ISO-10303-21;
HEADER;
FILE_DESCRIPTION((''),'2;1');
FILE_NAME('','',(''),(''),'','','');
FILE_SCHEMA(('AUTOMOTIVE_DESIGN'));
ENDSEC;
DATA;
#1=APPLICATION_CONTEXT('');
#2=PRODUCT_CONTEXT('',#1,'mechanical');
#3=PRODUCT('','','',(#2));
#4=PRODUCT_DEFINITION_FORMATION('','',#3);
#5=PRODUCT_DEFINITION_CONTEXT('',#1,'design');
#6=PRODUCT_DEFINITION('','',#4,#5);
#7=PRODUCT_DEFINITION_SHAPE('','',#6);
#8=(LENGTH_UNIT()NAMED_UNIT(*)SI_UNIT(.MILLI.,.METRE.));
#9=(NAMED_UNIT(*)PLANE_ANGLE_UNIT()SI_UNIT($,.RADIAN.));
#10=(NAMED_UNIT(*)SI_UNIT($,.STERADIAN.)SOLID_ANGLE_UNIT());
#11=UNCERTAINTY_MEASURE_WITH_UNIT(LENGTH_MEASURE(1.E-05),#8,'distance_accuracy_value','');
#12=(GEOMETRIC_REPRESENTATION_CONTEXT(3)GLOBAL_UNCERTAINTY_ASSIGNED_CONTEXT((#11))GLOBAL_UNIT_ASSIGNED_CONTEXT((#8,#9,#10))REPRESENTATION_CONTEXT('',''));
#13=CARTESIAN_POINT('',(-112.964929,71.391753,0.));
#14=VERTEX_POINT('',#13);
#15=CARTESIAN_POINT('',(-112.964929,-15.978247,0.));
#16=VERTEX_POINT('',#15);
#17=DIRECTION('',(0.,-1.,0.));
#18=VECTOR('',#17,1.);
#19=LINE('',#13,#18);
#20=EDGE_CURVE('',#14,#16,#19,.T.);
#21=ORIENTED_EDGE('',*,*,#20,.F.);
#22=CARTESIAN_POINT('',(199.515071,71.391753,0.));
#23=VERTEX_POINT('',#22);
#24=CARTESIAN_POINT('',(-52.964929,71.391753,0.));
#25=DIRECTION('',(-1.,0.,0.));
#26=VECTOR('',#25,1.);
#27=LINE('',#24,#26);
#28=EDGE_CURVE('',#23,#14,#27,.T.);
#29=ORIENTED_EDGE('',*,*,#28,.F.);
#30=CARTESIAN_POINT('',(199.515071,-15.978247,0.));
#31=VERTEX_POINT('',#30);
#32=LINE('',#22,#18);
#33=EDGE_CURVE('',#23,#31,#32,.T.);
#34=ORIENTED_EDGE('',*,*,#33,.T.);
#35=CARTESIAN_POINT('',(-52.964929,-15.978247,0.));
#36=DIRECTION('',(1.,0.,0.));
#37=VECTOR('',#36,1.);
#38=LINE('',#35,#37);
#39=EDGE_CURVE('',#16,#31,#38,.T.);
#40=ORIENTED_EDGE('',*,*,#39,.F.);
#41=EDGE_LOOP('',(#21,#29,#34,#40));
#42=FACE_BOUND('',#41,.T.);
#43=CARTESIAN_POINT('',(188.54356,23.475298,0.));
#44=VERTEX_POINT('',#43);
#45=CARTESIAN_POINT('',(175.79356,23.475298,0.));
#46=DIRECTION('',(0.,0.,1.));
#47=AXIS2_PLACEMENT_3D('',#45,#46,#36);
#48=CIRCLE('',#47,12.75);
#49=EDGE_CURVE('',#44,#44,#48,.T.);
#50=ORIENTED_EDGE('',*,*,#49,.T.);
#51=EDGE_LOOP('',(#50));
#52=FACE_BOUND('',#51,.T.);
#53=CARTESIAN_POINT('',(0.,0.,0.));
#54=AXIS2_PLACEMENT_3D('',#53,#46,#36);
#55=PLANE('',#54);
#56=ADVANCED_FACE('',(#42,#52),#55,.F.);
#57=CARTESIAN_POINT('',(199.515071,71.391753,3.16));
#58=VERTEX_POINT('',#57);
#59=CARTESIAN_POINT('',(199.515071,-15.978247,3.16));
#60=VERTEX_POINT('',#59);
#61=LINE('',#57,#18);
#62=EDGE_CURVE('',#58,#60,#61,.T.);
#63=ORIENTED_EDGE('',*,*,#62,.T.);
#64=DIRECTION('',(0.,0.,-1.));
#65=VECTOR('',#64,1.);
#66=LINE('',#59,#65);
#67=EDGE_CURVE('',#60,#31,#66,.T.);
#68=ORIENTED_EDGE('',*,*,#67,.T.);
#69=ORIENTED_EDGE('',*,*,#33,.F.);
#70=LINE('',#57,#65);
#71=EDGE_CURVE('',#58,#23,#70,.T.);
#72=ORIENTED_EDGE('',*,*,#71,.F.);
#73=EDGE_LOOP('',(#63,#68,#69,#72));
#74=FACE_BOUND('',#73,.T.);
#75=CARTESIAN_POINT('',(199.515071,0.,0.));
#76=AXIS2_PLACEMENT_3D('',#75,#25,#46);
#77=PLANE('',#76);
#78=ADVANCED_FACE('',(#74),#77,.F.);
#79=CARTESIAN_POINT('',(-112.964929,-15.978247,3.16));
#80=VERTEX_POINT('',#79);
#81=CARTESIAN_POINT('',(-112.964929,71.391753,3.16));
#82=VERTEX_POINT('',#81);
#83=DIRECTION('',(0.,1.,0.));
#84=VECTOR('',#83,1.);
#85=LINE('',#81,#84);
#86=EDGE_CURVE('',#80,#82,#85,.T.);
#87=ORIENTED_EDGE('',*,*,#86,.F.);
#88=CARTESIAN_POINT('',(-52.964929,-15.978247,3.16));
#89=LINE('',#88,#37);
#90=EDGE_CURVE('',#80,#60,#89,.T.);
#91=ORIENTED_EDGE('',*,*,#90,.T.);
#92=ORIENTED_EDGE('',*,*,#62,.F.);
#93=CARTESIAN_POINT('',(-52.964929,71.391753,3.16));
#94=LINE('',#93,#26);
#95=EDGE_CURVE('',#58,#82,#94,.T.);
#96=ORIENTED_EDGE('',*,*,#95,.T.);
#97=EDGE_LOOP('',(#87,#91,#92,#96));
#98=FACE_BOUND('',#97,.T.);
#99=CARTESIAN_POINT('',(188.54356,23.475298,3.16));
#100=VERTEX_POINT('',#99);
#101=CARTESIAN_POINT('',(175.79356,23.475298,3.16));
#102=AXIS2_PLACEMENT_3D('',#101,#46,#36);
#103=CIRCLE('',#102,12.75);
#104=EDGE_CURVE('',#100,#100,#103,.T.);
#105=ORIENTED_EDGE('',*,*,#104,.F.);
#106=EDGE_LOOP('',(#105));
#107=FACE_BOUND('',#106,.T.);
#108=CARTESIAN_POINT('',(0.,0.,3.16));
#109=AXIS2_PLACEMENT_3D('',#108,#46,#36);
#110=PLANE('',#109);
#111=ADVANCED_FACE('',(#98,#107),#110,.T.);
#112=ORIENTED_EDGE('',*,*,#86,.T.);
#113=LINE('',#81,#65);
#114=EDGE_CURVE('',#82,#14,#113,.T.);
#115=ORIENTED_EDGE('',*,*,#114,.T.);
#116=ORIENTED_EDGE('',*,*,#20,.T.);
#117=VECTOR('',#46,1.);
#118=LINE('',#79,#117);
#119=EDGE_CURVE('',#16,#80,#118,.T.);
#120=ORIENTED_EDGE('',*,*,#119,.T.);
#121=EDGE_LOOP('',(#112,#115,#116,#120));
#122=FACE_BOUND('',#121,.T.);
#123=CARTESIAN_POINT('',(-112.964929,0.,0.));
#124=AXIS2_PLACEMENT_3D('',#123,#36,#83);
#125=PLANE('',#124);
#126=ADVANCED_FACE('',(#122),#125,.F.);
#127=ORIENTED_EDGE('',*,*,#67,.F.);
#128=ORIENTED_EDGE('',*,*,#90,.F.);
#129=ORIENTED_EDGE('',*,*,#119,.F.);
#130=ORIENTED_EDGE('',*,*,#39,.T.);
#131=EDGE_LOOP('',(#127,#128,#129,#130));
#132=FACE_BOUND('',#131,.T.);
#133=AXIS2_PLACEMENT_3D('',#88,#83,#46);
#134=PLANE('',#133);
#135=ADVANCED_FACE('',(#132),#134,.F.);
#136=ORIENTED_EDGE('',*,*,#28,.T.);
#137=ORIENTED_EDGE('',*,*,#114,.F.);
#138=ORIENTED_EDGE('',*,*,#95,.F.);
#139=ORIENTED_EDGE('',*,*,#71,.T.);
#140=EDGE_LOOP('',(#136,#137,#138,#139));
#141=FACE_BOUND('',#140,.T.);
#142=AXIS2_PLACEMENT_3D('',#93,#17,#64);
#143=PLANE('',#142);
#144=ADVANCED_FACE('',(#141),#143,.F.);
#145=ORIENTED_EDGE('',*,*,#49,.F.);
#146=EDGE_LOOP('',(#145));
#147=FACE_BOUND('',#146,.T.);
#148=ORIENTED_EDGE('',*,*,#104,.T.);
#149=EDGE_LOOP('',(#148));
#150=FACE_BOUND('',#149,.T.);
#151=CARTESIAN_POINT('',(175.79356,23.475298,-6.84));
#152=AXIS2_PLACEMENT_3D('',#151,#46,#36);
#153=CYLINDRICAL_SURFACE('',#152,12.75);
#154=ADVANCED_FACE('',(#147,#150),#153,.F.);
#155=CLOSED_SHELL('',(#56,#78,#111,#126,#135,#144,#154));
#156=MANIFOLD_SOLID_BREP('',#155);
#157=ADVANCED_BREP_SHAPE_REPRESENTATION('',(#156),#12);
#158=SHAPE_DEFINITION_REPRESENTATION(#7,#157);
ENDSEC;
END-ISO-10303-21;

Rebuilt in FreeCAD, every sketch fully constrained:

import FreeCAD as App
import Part
import Sketcher

V = App.Vector

doc = App.newDocument("Part")
body = doc.addObject("PartDesign::Body", "Body")

# Sketch on XY plane
sketch1 = body.newObject("Sketcher::SketchObject", "Sketch")
sketch1.AttachmentSupport = (doc.getObject("XY_Plane"), [""])
sketch1.MapMode = "FlatFace"
sketch1.addGeometry(Part.LineSegment(V(-53, 71, 0), V(-53, -16, 0)), False)
sketch1.addGeometry(Part.LineSegment(V(-53, -16, 0), V(24, -16, 0)), False)
sketch1.addGeometry(Part.LineSegment(V(24, -16, 0), V(24, 71, 0)), False)
sketch1.addGeometry(Part.LineSegment(V(24, 71, 0), V(-53, 71, 0)), False)
sketch1.addConstraint(Sketcher.Constraint("Coincident", 0, 2, 1, 1))
sketch1.addConstraint(Sketcher.Constraint("Coincident", 1, 2, 2, 1))
sketch1.addConstraint(Sketcher.Constraint("Coincident", 2, 2, 3, 1))
sketch1.addConstraint(Sketcher.Constraint("Coincident", 3, 2, 0, 1))
sketch1.addConstraint(Sketcher.Constraint("Vertical", 0))
sketch1.addConstraint(Sketcher.Constraint("Horizontal", 1))
sketch1.addConstraint(Sketcher.Constraint("Vertical", 2))
sketch1.addConstraint(Sketcher.Constraint("Horizontal", 3))
sketch1.addConstraint(Sketcher.Constraint("DistanceX", 1, 1, 1, 2, 77.34))
sketch1.addConstraint(Sketcher.Constraint("DistanceY", 0, 2, 0, 1, 87.37))
sketch1.addConstraint(Sketcher.Constraint("DistanceX", 0, 2, -1, 1, 52.964929))
sketch1.addConstraint(Sketcher.Constraint("DistanceY", 0, 2, -1, 1, 15.978247))
pad1 = body.newObject("PartDesign::Pad", "Pad")
pad1.Profile = sketch1
pad1.Length = 3.16

# Sketch on YZ plane
sketch2 = body.newObject("Sketcher::SketchObject", "Sketch001")
sketch2.AttachmentSupport = (doc.getObject("YZ_Plane"), [""])
sketch2.MapMode = "FlatFace"
sketch2.AttachmentOffset = App.Placement(V(0, 0, 24.375071), App.Rotation())
sketch2.addGeometry(Part.LineSegment(V(71.4, 3.2, 0), V(-16, 3.2, 0)), False)
sketch2.addGeometry(Part.LineSegment(V(-16, 3.2, 0), V(-16, 0, 0)), False)
sketch2.addGeometry(Part.LineSegment(V(-16, 0, 0), V(71.4, 0, 0)), False)
sketch2.addGeometry(Part.LineSegment(V(71.4, 0, 0), V(71.4, 3.2, 0)), False)
sketch2.addConstraint(Sketcher.Constraint("Coincident", 0, 2, 1, 1))
sketch2.addConstraint(Sketcher.Constraint("Coincident", 1, 2, 2, 1))
sketch2.addConstraint(Sketcher.Constraint("Coincident", 2, 2, 3, 1))
sketch2.addConstraint(Sketcher.Constraint("Coincident", 3, 2, 0, 1))
sketch2.addConstraint(Sketcher.Constraint("Horizontal", 0))
sketch2.addConstraint(Sketcher.Constraint("Vertical", 1))
sketch2.addConstraint(Sketcher.Constraint("Horizontal", 2))
sketch2.addConstraint(Sketcher.Constraint("Vertical", 3))
sketch2.addConstraint(Sketcher.Constraint("PointOnObject", 1, 2, -1))
sketch2.addConstraint(Sketcher.Constraint("DistanceX", 0, 2, 0, 1, 87.37))
sketch2.addConstraint(Sketcher.Constraint("DistanceY", 1, 2, 1, 1, 3.16))
sketch2.addConstraint(Sketcher.Constraint("DistanceX", 0, 2, -1, 1, 15.978247))
pad2 = body.newObject("PartDesign::Pad", "Pad001")
pad2.Profile = sketch2
pad2.Length = 80

# Sketch on YZ plane
sketch3 = body.newObject("Sketcher::SketchObject", "Sketch002")
sketch3.AttachmentSupport = (doc.getObject("YZ_Plane"), [""])
sketch3.MapMode = "FlatFace"
sketch3.AttachmentOffset = App.Placement(V(0, 0, -52.964929), App.Rotation())
sketch3.addGeometry(Part.LineSegment(V(71.4, 0, 0), V(-16, 0, 0)), False)
sketch3.addGeometry(Part.LineSegment(V(-16, 0, 0), V(-16, 3.2, 0)), False)
sketch3.addGeometry(Part.LineSegment(V(-16, 3.2, 0), V(71.4, 3.2, 0)), False)
sketch3.addGeometry(Part.LineSegment(V(71.4, 3.2, 0), V(71.4, 0, 0)), False)
sketch3.addConstraint(Sketcher.Constraint("Coincident", 0, 2, 1, 1))
sketch3.addConstraint(Sketcher.Constraint("Coincident", 1, 2, 2, 1))
sketch3.addConstraint(Sketcher.Constraint("Coincident", 2, 2, 3, 1))
sketch3.addConstraint(Sketcher.Constraint("Coincident", 3, 2, 0, 1))
sketch3.addConstraint(Sketcher.Constraint("Horizontal", 0))
sketch3.addConstraint(Sketcher.Constraint("Vertical", 1))
sketch3.addConstraint(Sketcher.Constraint("Horizontal", 2))
sketch3.addConstraint(Sketcher.Constraint("Vertical", 3))
sketch3.addConstraint(Sketcher.Constraint("PointOnObject", 0, 2, -1))
sketch3.addConstraint(Sketcher.Constraint("DistanceX", 0, 2, 0, 1, 87.37))
sketch3.addConstraint(Sketcher.Constraint("DistanceY", 1, 1, 1, 2, 3.16))
sketch3.addConstraint(Sketcher.Constraint("DistanceX", 0, 2, -1, 1, 15.978247))
pad3 = body.newObject("PartDesign::Pad", "Pad002")
pad3.Profile = sketch3
pad3.Length = 60
pad3.Reversed = True

# Sketch on YZ plane
sketch4 = body.newObject("Sketcher::SketchObject", "Sketch003")
sketch4.AttachmentSupport = (doc.getObject("YZ_Plane"), [""])
sketch4.MapMode = "FlatFace"
sketch4.AttachmentOffset = App.Placement(V(0, 0, 104.375071), App.Rotation())
sketch4.addGeometry(Part.LineSegment(V(71.4, 3.2, 0), V(-16, 3.2, 0)), False)
sketch4.addGeometry(Part.LineSegment(V(-16, 3.2, 0), V(-16, 0, 0)), False)
sketch4.addGeometry(Part.LineSegment(V(-16, 0, 0), V(71.4, 0, 0)), False)
sketch4.addGeometry(Part.LineSegment(V(71.4, 0, 0), V(71.4, 3.2, 0)), False)
sketch4.addConstraint(Sketcher.Constraint("Coincident", 0, 2, 1, 1))
sketch4.addConstraint(Sketcher.Constraint("Coincident", 1, 2, 2, 1))
sketch4.addConstraint(Sketcher.Constraint("Coincident", 2, 2, 3, 1))
sketch4.addConstraint(Sketcher.Constraint("Coincident", 3, 2, 0, 1))
sketch4.addConstraint(Sketcher.Constraint("Horizontal", 0))
sketch4.addConstraint(Sketcher.Constraint("Vertical", 1))
sketch4.addConstraint(Sketcher.Constraint("Horizontal", 2))
sketch4.addConstraint(Sketcher.Constraint("Vertical", 3))
sketch4.addConstraint(Sketcher.Constraint("PointOnObject", 1, 2, -1))
sketch4.addConstraint(Sketcher.Constraint("DistanceX", 0, 2, 0, 1, 87.37))
sketch4.addConstraint(Sketcher.Constraint("DistanceY", 1, 2, 1, 1, 3.16))
sketch4.addConstraint(Sketcher.Constraint("DistanceX", 0, 2, -1, 1, 15.978247))
pad4 = body.newObject("PartDesign::Pad", "Pad003")
pad4.Profile = sketch4
pad4.Length = 113

# Sketch on YZ plane
sketch5 = body.newObject("Sketcher::SketchObject", "Sketch004")
sketch5.AttachmentSupport = (doc.getObject("YZ_Plane"), [""])
sketch5.MapMode = "FlatFace"
sketch5.AttachmentOffset = App.Placement(V(0, 0, 217.375071), App.Rotation())
sketch5.addGeometry(Part.LineSegment(V(71.4, 3.2, 0), V(-16, 3.2, 0)), False)
sketch5.addGeometry(Part.LineSegment(V(-16, 3.2, 0), V(-16, 0, 0)), False)
sketch5.addGeometry(Part.LineSegment(V(-16, 0, 0), V(71.4, 0, 0)), False)
sketch5.addGeometry(Part.LineSegment(V(71.4, 0, 0), V(71.4, 3.2, 0)), False)
sketch5.addConstraint(Sketcher.Constraint("Coincident", 0, 2, 1, 1))
sketch5.addConstraint(Sketcher.Constraint("Coincident", 1, 2, 2, 1))
sketch5.addConstraint(Sketcher.Constraint("Coincident", 2, 2, 3, 1))
sketch5.addConstraint(Sketcher.Constraint("Coincident", 3, 2, 0, 1))
sketch5.addConstraint(Sketcher.Constraint("Horizontal", 0))
sketch5.addConstraint(Sketcher.Constraint("Vertical", 1))
sketch5.addConstraint(Sketcher.Constraint("Horizontal", 2))
sketch5.addConstraint(Sketcher.Constraint("Vertical", 3))
sketch5.addConstraint(Sketcher.Constraint("PointOnObject", 1, 2, -1))
sketch5.addConstraint(Sketcher.Constraint("DistanceX", 0, 2, 0, 1, 87.37))
sketch5.addConstraint(Sketcher.Constraint("DistanceY", 1, 2, 1, 1, 3.16))
sketch5.addConstraint(Sketcher.Constraint("DistanceX", 0, 2, -1, 1, 15.978247))
pocket1 = body.newObject("PartDesign::Pocket", "Pocket")
pocket1.Profile = sketch5
pocket1.Length = 17.86

# Sketch on XY plane
sketch6 = body.newObject("Sketcher::SketchObject", "Sketch005")
sketch6.AttachmentSupport = (doc.getObject("XY_Plane"), [""])
sketch6.MapMode = "FlatFace"
sketch6.AttachmentOffset = App.Placement(V(0, 0, 3.16), App.Rotation())
sketch6.addGeometry(Part.Circle(V(176, 23, 0), V(0, 0, 1), 13), False)
sketch6.addConstraint(Sketcher.Constraint("Diameter", 0, 25.5))
sketch6.addConstraint(Sketcher.Constraint("DistanceX", -1, 1, 0, 3, 175.79356))
sketch6.addConstraint(Sketcher.Constraint("DistanceY", -1, 1, 0, 3, 23.475298))
pocket2 = body.newObject("PartDesign::Pocket", "Pocket001")
pocket2.Profile = sketch6
pocket2.Length = 10

doc.recompute()
